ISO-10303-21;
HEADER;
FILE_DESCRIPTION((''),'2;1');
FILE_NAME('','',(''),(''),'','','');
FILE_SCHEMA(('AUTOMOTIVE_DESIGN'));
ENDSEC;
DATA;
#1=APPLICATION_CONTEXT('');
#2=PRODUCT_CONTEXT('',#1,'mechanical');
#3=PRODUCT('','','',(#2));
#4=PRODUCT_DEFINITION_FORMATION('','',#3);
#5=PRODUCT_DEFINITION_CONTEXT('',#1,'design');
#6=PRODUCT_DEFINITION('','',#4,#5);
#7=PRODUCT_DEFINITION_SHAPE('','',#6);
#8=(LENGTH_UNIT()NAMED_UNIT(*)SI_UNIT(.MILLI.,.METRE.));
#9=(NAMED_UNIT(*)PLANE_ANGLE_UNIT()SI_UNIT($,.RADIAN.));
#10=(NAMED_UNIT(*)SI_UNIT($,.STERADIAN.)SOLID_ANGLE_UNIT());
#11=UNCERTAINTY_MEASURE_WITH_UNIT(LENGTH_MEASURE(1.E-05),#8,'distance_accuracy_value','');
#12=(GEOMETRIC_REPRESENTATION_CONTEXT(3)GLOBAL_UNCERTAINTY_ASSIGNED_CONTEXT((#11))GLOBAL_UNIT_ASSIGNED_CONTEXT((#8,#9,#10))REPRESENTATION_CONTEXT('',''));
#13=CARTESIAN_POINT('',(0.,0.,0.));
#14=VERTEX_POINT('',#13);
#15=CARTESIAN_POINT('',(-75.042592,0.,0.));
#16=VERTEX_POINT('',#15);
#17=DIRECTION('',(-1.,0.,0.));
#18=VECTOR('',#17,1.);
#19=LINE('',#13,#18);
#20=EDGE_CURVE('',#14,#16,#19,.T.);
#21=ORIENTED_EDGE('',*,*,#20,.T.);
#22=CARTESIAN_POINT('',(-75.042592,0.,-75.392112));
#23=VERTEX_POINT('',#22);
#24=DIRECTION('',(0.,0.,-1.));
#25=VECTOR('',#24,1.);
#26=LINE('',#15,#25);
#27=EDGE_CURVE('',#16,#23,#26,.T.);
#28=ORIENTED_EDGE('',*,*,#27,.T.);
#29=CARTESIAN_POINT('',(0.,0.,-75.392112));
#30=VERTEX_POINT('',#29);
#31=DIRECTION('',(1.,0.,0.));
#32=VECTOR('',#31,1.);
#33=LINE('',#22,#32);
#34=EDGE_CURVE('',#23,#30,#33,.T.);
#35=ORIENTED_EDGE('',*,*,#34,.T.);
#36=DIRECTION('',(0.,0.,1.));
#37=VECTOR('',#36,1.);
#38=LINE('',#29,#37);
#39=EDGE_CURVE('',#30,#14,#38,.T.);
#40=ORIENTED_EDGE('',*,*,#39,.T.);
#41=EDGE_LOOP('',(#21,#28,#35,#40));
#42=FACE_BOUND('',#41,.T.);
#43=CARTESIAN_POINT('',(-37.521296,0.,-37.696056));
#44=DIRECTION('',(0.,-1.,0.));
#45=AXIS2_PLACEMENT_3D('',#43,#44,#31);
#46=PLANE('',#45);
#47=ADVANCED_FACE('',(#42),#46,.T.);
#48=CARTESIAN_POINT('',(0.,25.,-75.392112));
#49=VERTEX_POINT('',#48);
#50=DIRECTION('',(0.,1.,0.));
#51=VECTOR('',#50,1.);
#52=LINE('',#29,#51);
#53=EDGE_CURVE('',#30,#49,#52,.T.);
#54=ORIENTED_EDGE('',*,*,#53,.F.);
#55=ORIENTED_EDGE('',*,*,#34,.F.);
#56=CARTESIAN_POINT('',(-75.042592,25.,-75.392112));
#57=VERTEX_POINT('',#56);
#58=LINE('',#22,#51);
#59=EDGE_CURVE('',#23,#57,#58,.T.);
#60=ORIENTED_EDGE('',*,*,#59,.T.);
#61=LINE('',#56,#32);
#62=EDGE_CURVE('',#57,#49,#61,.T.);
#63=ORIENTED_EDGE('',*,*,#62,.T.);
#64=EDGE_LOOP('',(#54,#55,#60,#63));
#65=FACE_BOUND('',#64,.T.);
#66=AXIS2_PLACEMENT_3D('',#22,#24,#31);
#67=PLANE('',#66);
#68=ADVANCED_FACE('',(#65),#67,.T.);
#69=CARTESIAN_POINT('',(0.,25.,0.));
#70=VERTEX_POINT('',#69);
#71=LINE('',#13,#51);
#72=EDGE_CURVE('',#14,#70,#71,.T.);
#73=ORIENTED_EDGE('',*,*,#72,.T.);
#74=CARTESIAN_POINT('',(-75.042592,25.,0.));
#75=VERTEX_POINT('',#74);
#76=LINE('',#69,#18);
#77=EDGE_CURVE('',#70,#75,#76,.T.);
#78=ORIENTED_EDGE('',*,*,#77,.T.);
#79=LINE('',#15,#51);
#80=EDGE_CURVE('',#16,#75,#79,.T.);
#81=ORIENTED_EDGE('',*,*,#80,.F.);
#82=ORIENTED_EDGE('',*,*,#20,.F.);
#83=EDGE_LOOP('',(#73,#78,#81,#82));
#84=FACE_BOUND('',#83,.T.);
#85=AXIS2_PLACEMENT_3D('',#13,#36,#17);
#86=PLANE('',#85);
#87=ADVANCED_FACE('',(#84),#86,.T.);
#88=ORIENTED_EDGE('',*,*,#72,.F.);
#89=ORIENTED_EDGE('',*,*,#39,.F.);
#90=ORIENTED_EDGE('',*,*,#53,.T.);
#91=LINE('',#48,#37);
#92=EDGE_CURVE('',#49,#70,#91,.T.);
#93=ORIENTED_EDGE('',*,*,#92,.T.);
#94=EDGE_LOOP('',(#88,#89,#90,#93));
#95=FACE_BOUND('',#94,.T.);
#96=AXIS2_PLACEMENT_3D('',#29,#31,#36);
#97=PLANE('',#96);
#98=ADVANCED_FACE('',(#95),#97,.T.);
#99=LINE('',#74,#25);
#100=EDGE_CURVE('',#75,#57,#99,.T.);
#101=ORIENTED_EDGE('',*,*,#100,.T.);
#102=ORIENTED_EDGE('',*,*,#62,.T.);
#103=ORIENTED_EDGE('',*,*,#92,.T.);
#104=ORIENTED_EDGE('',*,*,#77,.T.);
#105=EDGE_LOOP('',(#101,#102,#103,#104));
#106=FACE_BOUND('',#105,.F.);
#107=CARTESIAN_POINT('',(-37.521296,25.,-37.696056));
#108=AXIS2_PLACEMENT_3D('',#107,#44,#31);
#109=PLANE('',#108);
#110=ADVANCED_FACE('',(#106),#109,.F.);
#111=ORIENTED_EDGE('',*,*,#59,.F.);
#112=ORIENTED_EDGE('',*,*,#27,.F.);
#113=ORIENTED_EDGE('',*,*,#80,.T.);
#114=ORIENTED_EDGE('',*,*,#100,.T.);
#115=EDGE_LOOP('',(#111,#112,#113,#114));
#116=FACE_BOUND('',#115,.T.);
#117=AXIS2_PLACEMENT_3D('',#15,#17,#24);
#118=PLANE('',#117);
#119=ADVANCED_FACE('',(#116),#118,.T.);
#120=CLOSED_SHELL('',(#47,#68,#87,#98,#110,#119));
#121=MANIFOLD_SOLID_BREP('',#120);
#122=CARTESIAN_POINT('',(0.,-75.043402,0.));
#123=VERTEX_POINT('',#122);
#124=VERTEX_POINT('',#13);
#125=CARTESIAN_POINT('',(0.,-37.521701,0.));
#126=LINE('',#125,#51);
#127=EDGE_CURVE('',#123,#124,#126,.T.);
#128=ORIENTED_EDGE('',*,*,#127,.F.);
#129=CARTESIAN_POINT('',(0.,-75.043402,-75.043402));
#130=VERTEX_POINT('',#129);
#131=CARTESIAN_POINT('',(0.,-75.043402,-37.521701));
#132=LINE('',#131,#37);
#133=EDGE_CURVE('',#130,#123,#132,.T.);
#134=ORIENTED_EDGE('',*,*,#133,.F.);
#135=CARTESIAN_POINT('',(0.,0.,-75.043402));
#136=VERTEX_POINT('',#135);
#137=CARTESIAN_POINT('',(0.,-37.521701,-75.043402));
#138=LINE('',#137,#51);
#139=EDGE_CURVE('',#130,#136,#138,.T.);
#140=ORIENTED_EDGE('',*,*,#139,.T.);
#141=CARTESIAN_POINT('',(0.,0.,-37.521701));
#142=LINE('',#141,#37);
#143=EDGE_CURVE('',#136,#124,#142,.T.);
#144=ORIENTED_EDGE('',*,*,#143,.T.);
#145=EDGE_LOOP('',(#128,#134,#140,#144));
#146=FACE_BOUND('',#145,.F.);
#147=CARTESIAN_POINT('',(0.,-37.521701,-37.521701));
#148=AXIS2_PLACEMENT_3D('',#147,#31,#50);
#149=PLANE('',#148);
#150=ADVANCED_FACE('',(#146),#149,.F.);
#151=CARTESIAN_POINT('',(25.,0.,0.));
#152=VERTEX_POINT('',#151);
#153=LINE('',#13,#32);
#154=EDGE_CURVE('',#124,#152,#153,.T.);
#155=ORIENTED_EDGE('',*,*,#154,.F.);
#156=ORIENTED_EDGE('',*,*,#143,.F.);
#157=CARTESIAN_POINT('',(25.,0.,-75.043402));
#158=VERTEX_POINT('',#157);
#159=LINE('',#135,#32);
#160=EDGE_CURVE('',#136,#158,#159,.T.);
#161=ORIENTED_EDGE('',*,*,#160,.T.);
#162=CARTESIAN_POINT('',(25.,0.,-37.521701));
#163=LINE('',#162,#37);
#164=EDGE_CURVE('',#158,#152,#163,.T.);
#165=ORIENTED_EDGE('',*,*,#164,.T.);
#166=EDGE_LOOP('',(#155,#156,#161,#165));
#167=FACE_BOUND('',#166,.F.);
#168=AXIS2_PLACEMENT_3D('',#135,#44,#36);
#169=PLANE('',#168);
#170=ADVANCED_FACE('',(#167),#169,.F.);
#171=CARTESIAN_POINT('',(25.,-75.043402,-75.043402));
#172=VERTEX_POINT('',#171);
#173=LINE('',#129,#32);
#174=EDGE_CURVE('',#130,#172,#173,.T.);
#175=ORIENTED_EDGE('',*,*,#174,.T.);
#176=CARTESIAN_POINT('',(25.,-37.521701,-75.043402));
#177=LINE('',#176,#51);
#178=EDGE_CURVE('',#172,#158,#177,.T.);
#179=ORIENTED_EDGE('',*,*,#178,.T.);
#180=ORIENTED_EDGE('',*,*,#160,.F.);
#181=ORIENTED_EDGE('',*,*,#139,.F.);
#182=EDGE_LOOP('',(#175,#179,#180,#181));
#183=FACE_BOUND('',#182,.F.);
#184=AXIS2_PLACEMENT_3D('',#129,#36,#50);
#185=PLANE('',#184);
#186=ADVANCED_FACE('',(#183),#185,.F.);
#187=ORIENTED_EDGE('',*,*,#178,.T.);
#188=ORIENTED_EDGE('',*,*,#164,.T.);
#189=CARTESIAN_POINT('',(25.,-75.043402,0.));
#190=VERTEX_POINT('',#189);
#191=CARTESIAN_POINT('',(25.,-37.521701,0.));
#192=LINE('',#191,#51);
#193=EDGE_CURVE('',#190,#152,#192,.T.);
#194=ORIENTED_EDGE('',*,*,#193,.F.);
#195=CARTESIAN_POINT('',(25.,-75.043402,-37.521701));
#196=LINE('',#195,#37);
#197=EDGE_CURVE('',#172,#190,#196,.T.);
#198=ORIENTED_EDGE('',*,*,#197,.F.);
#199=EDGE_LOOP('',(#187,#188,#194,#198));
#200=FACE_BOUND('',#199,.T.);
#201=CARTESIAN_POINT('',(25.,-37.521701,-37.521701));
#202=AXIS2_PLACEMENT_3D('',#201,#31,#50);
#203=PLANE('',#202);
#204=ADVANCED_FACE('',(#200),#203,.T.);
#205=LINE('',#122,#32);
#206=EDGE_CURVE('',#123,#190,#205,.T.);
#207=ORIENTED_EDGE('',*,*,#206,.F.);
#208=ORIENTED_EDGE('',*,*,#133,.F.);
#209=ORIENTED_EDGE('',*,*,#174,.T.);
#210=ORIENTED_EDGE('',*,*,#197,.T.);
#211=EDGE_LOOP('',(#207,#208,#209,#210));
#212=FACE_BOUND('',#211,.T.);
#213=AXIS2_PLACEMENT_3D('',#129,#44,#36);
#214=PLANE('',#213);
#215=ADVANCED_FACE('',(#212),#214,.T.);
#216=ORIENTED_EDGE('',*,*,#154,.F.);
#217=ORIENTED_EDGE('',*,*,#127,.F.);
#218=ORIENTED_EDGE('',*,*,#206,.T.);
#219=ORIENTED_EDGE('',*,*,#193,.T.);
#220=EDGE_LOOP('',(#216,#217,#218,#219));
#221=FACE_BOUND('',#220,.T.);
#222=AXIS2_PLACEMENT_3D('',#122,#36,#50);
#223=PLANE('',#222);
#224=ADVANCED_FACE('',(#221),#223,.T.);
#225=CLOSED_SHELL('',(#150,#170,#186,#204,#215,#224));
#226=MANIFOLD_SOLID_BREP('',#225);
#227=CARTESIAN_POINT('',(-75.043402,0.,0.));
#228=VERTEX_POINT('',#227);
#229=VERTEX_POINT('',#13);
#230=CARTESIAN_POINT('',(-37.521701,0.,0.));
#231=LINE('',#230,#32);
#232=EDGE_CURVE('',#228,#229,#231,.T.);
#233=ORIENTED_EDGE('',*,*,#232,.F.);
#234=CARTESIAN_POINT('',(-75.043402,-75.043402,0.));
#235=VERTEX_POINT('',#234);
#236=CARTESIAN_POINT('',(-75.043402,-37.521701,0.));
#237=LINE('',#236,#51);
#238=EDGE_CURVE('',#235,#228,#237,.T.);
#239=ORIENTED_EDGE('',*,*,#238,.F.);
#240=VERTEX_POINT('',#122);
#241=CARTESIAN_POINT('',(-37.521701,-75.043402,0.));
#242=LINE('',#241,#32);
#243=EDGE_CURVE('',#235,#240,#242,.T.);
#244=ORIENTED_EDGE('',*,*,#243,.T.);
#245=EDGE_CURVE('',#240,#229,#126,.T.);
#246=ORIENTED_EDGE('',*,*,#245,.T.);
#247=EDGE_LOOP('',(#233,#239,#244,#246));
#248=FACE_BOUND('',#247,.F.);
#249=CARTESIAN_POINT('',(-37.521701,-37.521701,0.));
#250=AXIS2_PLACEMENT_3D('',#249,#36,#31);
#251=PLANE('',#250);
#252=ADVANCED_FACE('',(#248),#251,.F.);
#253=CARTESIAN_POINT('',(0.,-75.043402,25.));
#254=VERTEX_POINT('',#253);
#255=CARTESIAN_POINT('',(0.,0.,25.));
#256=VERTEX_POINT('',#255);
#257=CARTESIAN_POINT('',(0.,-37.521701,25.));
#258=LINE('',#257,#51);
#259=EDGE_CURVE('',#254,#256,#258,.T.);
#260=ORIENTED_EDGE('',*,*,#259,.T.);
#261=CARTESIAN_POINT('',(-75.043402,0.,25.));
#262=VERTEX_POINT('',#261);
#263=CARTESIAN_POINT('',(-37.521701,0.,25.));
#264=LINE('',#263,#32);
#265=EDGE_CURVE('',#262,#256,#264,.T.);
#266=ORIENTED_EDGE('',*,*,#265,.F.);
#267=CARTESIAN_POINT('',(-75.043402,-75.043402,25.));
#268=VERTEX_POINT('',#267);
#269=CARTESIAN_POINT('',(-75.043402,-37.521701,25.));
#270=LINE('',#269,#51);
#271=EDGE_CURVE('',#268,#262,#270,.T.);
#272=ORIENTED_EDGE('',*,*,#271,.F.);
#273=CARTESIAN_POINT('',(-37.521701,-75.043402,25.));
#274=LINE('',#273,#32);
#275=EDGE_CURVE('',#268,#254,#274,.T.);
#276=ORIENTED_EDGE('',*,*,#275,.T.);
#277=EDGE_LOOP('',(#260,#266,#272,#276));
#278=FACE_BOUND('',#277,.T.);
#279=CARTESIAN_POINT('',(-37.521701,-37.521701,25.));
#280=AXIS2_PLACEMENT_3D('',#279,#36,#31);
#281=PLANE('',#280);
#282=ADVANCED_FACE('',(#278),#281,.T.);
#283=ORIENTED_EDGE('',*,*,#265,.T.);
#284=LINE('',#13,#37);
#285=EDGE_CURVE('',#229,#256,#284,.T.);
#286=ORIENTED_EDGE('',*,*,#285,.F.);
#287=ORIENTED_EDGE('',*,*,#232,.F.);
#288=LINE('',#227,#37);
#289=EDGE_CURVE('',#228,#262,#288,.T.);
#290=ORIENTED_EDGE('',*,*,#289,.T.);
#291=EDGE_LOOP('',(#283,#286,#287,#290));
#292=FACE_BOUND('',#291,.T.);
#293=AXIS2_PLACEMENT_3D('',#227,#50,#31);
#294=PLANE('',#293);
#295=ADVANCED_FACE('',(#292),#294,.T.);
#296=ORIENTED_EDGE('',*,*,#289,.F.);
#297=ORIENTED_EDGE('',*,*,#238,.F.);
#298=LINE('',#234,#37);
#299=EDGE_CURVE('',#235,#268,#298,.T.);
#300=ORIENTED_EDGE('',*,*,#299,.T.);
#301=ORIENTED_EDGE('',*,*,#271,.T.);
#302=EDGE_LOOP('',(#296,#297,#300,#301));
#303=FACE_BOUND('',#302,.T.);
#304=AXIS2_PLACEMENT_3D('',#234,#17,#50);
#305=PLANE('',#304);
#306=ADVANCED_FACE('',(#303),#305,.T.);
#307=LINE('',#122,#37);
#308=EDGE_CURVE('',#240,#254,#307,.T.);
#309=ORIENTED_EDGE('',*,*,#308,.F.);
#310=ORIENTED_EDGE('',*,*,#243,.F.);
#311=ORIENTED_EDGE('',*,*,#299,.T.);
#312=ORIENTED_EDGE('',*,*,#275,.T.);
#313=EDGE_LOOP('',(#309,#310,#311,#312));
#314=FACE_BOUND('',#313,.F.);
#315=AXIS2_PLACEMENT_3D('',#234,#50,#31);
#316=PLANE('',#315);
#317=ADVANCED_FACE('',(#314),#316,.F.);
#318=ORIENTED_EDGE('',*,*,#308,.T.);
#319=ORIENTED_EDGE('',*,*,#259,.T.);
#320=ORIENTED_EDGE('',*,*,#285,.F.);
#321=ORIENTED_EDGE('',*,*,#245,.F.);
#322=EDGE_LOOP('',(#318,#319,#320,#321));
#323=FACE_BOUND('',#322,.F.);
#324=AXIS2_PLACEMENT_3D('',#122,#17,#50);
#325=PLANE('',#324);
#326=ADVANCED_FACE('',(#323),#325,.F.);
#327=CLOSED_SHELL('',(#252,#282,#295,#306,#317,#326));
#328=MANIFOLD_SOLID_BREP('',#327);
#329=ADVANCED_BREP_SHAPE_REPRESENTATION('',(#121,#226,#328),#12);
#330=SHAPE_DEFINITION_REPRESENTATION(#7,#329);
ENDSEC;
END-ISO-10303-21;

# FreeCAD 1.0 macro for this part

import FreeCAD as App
import Part
import Sketcher


def add_polygon(sketch, points):
    """Adds a closed chain of lines whose ends are joined by coincident constraints."""
    first, n = sketch.GeometryCount, len(points)
    for a, b in zip(points, points[1:] + points[:1]):
        sketch.addGeometry(Part.LineSegment(App.Vector(*a, 0), App.Vector(*b, 0)), False)
    for i in range(n):
        sketch.addConstraint(Sketcher.Constraint("Coincident", first + i, 2, first + (i + 1) % n, 1))

doc = App.newDocument("Part")
body = doc.addObject("PartDesign::Body", "Body")

# Sketch on XZ plane
sketch1 = body.newObject("Sketcher::SketchObject", "Sketch")
sketch1.AttachmentSupport = (doc.getObject("XZ_Plane"), [""])
sketch1.MapMode = "FlatFace"
add_polygon(sketch1, [(0, 0), (-75, 0), (-75, -75), (0, -75)])  # lines 0-3
sketch1.addConstraint(Sketcher.Constraint("Horizontal", 0))
sketch1.addConstraint(Sketcher.Constraint("Vertical", 1))
sketch1.addConstraint(Sketcher.Constraint("Horizontal", 2))
sketch1.addConstraint(Sketcher.Constraint("Vertical", 3))
sketch1.addConstraint(Sketcher.Constraint("Coincident", 3, 2, -1, 1))
sketch1.addConstraint(Sketcher.Constraint("DistanceX", 0, 2, 0, 1, 75.042592))
sketch1.addConstraint(Sketcher.Constraint("DistanceY", 1, 2, 1, 1, 75.392112))
pad1 = body.newObject("PartDesign::Pad", "Pad")
pad1.Profile = sketch1
pad1.Length = 25
pad1.Reversed = True
body2 = doc.addObject("PartDesign::Body", "Body001")

# Sketch on YZ plane
sketch2 = body2.newObject("Sketcher::SketchObject", "Sketch001")
sketch2.AttachmentSupport = (doc.getObject("YZ_Plane001"), [""])
sketch2.MapMode = "FlatFace"
add_polygon(sketch2, [(-75, 0), (-75, -75), (0, -75), (0, 0)])  # lines 0-3
sketch2.addConstraint(Sketcher.Constraint("Vertical", 0))
sketch2.addConstraint(Sketcher.Constraint("Horizontal", 1))
sketch2.addConstraint(Sketcher.Constraint("Vertical", 2))
sketch2.addConstraint(Sketcher.Constraint("Horizontal", 3))
sketch2.addConstraint(Sketcher.Constraint("Coincident", 2, 2, -1, 1))
sketch2.addConstraint(Sketcher.Constraint("Equal", 3, 0))
sketch2.addConstraint(Sketcher.Constraint("DistanceX", 1, 1, 1, 2, 75.043403))
pad2 = body2.newObject("PartDesign::Pad", "Pad001")
pad2.Profile = sketch2
pad2.Length = 25
body3 = doc.addObject("PartDesign::Body", "Body002")

# Sketch on XY plane
sketch3 = body3.newObject("Sketcher::SketchObject", "Sketch002")
sketch3.AttachmentSupport = (doc.getObject("XY_Plane002"), [""])
sketch3.MapMode = "FlatFace"
add_polygon(sketch3, [(-75, 0), (-75, -75), (0, -75), (0, 0)])  # lines 0-3
sketch3.addConstraint(Sketcher.Constraint("Vertical", 0))
sketch3.addConstraint(Sketcher.Constraint("Horizontal", 1))
sketch3.addConstraint(Sketcher.Constraint("Vertical", 2))
sketch3.addConstraint(Sketcher.Constraint("Horizontal", 3))
sketch3.addConstraint(Sketcher.Constraint("Coincident", 2, 2, -1, 1))
sketch3.addConstraint(Sketcher.Constraint("Equal", 3, 0))
sketch3.addConstraint(Sketcher.Constraint("DistanceX", 1, 1, 1, 2, 75.043403))
pad3 = body3.newObject("PartDesign::Pad", "Pad002")
pad3.Profile = sketch3
pad3.Length = 25

doc.recompute()
